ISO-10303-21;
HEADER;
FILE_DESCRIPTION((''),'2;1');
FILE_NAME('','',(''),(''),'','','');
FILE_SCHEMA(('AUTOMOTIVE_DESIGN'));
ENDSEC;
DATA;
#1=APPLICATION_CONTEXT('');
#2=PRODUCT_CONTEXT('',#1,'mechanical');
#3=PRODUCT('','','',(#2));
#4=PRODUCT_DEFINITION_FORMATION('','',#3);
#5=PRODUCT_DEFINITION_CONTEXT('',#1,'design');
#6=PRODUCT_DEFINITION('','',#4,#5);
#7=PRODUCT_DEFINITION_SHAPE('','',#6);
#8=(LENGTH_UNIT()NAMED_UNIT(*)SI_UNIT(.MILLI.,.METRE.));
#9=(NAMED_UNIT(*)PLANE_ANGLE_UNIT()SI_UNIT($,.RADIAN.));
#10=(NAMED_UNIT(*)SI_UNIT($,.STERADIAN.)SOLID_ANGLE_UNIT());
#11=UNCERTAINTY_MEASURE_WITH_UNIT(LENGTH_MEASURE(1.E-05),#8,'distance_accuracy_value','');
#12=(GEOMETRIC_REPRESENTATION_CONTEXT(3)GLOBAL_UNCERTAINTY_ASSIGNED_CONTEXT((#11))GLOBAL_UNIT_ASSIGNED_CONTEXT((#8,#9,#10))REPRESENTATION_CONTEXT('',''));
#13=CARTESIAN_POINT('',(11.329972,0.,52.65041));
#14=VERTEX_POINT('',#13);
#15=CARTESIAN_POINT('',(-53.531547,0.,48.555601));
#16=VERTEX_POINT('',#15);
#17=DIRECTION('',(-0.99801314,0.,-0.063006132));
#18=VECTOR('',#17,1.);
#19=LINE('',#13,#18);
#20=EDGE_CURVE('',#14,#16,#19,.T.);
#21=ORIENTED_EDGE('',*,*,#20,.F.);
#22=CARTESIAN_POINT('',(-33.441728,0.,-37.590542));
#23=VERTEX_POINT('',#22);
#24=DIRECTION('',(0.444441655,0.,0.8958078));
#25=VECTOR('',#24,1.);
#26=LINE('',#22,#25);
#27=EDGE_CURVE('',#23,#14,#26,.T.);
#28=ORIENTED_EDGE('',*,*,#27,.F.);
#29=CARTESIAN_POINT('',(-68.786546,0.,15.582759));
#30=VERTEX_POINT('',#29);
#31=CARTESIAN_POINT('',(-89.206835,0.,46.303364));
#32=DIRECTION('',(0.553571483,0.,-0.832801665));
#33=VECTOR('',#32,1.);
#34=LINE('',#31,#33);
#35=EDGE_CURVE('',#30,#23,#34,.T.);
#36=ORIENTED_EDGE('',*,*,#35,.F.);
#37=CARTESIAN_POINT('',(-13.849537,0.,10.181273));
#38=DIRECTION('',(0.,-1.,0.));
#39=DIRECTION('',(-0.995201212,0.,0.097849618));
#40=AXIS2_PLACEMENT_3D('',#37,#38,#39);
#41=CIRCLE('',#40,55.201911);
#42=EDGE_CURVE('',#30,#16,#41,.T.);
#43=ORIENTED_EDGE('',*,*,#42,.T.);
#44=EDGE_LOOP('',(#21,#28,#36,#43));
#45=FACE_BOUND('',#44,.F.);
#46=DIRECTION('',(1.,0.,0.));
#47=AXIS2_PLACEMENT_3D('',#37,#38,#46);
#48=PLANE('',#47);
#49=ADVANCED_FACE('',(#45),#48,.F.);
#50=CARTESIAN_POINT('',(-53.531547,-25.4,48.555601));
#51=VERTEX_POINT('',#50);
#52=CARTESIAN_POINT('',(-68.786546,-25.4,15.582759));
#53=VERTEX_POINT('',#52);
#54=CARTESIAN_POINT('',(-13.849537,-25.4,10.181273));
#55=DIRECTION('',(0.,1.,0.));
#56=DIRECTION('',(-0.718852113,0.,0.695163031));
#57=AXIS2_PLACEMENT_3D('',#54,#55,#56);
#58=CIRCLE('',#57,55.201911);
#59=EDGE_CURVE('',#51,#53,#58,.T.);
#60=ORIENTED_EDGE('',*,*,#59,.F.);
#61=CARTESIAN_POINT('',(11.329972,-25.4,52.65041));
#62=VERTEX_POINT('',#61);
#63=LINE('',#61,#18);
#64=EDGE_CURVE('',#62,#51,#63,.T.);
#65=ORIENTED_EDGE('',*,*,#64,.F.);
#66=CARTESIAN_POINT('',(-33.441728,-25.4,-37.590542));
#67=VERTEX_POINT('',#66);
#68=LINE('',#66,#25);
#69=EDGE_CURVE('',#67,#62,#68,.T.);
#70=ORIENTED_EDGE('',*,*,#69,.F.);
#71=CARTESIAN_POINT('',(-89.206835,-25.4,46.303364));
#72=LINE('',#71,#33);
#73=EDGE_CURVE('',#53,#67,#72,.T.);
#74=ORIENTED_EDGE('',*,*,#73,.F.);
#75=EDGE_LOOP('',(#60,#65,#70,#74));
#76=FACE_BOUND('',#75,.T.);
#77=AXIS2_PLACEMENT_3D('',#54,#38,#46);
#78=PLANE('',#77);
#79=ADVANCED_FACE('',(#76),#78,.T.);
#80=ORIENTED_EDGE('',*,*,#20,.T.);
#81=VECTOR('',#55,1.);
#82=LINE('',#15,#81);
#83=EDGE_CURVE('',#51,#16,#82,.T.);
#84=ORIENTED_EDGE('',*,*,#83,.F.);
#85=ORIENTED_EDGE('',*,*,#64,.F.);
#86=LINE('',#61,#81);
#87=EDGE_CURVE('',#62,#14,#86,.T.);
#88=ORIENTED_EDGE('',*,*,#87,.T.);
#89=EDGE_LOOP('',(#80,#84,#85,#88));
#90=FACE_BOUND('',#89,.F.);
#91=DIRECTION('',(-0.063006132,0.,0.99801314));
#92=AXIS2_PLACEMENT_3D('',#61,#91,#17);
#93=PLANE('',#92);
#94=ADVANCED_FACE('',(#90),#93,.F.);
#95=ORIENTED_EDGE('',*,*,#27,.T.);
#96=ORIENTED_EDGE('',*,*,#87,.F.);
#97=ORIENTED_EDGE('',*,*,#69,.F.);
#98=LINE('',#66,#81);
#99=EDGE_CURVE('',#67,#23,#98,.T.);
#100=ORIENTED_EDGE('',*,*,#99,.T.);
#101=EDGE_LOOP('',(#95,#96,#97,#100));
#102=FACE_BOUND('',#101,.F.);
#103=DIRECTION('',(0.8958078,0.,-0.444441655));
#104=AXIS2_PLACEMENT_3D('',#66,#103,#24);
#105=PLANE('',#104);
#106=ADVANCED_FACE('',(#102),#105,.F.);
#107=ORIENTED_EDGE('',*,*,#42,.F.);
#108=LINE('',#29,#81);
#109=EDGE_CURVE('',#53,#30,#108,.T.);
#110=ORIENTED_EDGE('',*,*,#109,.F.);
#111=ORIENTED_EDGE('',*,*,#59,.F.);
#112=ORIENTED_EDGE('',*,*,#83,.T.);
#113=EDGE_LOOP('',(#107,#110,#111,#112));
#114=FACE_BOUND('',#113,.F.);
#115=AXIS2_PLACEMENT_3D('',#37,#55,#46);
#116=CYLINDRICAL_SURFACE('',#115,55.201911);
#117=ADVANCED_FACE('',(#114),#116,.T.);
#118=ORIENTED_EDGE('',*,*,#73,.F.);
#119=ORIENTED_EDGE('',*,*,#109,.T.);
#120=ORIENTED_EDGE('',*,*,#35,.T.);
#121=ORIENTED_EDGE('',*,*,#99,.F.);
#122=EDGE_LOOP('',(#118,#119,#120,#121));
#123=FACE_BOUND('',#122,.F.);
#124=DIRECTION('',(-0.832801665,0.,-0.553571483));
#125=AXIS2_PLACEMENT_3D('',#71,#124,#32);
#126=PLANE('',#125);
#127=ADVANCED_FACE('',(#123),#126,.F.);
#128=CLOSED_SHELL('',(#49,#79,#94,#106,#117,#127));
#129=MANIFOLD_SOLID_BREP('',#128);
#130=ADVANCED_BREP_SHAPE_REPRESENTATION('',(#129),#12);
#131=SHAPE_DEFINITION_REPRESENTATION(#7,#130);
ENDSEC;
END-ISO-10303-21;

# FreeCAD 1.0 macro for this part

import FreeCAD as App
import Part
import Sketcher

V = App.Vector
Q = App.Units.Quantity


def add_polygon(sketch, points):
    """Adds a closed chain of lines whose ends are joined by coincident constraints."""
    first, n = sketch.GeometryCount, len(points)
    for a, b in zip(points, points[1:] + points[:1]):
        sketch.addGeometry(Part.LineSegment(App.Vector(*a, 0), App.Vector(*b, 0)), False)
    for i in range(n):
        sketch.addConstraint(Sketcher.Constraint("Coincident", first + i, 2, first + (i + 1) % n, 1))

doc = App.newDocument("Part")
body = doc.addObject("PartDesign::Body", "Body")

sketch1 = body.newObject("Sketcher::SketchObject", "Sketch")
sketch1.AttachmentSupport = (doc.getObject("XZ_Plane"), [""])
sketch1.MapMode = "FlatFace"
sketch1.addGeometry(Part.Circle(V(-14, 10, 0), V(0, 0, 1), 55), False)
sketch1.addConstraint([
    Sketcher.Constraint("Diameter", 0, 110.403822),
    Sketcher.Constraint("DistanceX", 0, 3, -1, 1, 13.849537),
    Sketcher.Constraint("DistanceY", -1, 1, 0, 3, 10.181273),
])
pad1 = body.newObject("PartDesign::Pad", "Pad")
pad1.Profile = sketch1
pad1.Length = Q("1 in")

sketch2 = body.newObject("Sketcher::SketchObject", "Sketch001")
sketch2.AttachmentSupport = (doc.getObject("XZ_Plane"), [""])
sketch2.MapMode = "FlatFace"
sketch2.AttachmentOffset = App.Placement(V(0, 0, 1 * 25.4), App.Rotation())
add_polygon(sketch2, [(-33, -38), (11, 53), (-89, 46)])
sketch2.addConstraint([
    Sketcher.Constraint("Equal", 0, 1),
    Sketcher.Constraint("Equal", 1, 2),
    Sketcher.Constraint("DistanceX", 2, 2, 0, 2, 44.7717),
    Sketcher.Constraint("DistanceY", -1, 1, 0, 2, 52.65041),
    Sketcher.Constraint("DistanceY", 2, 2, 0, 2, 90.240952),
    Sketcher.Constraint("DistanceX", -1, 1, 0, 2, 11.329972),
])
pocket1 = body.newObject("PartDesign::Pocket", "Pocket")
pocket1.Profile = sketch2
pocket1.Length = Q("1 in")

doc.recompute()
